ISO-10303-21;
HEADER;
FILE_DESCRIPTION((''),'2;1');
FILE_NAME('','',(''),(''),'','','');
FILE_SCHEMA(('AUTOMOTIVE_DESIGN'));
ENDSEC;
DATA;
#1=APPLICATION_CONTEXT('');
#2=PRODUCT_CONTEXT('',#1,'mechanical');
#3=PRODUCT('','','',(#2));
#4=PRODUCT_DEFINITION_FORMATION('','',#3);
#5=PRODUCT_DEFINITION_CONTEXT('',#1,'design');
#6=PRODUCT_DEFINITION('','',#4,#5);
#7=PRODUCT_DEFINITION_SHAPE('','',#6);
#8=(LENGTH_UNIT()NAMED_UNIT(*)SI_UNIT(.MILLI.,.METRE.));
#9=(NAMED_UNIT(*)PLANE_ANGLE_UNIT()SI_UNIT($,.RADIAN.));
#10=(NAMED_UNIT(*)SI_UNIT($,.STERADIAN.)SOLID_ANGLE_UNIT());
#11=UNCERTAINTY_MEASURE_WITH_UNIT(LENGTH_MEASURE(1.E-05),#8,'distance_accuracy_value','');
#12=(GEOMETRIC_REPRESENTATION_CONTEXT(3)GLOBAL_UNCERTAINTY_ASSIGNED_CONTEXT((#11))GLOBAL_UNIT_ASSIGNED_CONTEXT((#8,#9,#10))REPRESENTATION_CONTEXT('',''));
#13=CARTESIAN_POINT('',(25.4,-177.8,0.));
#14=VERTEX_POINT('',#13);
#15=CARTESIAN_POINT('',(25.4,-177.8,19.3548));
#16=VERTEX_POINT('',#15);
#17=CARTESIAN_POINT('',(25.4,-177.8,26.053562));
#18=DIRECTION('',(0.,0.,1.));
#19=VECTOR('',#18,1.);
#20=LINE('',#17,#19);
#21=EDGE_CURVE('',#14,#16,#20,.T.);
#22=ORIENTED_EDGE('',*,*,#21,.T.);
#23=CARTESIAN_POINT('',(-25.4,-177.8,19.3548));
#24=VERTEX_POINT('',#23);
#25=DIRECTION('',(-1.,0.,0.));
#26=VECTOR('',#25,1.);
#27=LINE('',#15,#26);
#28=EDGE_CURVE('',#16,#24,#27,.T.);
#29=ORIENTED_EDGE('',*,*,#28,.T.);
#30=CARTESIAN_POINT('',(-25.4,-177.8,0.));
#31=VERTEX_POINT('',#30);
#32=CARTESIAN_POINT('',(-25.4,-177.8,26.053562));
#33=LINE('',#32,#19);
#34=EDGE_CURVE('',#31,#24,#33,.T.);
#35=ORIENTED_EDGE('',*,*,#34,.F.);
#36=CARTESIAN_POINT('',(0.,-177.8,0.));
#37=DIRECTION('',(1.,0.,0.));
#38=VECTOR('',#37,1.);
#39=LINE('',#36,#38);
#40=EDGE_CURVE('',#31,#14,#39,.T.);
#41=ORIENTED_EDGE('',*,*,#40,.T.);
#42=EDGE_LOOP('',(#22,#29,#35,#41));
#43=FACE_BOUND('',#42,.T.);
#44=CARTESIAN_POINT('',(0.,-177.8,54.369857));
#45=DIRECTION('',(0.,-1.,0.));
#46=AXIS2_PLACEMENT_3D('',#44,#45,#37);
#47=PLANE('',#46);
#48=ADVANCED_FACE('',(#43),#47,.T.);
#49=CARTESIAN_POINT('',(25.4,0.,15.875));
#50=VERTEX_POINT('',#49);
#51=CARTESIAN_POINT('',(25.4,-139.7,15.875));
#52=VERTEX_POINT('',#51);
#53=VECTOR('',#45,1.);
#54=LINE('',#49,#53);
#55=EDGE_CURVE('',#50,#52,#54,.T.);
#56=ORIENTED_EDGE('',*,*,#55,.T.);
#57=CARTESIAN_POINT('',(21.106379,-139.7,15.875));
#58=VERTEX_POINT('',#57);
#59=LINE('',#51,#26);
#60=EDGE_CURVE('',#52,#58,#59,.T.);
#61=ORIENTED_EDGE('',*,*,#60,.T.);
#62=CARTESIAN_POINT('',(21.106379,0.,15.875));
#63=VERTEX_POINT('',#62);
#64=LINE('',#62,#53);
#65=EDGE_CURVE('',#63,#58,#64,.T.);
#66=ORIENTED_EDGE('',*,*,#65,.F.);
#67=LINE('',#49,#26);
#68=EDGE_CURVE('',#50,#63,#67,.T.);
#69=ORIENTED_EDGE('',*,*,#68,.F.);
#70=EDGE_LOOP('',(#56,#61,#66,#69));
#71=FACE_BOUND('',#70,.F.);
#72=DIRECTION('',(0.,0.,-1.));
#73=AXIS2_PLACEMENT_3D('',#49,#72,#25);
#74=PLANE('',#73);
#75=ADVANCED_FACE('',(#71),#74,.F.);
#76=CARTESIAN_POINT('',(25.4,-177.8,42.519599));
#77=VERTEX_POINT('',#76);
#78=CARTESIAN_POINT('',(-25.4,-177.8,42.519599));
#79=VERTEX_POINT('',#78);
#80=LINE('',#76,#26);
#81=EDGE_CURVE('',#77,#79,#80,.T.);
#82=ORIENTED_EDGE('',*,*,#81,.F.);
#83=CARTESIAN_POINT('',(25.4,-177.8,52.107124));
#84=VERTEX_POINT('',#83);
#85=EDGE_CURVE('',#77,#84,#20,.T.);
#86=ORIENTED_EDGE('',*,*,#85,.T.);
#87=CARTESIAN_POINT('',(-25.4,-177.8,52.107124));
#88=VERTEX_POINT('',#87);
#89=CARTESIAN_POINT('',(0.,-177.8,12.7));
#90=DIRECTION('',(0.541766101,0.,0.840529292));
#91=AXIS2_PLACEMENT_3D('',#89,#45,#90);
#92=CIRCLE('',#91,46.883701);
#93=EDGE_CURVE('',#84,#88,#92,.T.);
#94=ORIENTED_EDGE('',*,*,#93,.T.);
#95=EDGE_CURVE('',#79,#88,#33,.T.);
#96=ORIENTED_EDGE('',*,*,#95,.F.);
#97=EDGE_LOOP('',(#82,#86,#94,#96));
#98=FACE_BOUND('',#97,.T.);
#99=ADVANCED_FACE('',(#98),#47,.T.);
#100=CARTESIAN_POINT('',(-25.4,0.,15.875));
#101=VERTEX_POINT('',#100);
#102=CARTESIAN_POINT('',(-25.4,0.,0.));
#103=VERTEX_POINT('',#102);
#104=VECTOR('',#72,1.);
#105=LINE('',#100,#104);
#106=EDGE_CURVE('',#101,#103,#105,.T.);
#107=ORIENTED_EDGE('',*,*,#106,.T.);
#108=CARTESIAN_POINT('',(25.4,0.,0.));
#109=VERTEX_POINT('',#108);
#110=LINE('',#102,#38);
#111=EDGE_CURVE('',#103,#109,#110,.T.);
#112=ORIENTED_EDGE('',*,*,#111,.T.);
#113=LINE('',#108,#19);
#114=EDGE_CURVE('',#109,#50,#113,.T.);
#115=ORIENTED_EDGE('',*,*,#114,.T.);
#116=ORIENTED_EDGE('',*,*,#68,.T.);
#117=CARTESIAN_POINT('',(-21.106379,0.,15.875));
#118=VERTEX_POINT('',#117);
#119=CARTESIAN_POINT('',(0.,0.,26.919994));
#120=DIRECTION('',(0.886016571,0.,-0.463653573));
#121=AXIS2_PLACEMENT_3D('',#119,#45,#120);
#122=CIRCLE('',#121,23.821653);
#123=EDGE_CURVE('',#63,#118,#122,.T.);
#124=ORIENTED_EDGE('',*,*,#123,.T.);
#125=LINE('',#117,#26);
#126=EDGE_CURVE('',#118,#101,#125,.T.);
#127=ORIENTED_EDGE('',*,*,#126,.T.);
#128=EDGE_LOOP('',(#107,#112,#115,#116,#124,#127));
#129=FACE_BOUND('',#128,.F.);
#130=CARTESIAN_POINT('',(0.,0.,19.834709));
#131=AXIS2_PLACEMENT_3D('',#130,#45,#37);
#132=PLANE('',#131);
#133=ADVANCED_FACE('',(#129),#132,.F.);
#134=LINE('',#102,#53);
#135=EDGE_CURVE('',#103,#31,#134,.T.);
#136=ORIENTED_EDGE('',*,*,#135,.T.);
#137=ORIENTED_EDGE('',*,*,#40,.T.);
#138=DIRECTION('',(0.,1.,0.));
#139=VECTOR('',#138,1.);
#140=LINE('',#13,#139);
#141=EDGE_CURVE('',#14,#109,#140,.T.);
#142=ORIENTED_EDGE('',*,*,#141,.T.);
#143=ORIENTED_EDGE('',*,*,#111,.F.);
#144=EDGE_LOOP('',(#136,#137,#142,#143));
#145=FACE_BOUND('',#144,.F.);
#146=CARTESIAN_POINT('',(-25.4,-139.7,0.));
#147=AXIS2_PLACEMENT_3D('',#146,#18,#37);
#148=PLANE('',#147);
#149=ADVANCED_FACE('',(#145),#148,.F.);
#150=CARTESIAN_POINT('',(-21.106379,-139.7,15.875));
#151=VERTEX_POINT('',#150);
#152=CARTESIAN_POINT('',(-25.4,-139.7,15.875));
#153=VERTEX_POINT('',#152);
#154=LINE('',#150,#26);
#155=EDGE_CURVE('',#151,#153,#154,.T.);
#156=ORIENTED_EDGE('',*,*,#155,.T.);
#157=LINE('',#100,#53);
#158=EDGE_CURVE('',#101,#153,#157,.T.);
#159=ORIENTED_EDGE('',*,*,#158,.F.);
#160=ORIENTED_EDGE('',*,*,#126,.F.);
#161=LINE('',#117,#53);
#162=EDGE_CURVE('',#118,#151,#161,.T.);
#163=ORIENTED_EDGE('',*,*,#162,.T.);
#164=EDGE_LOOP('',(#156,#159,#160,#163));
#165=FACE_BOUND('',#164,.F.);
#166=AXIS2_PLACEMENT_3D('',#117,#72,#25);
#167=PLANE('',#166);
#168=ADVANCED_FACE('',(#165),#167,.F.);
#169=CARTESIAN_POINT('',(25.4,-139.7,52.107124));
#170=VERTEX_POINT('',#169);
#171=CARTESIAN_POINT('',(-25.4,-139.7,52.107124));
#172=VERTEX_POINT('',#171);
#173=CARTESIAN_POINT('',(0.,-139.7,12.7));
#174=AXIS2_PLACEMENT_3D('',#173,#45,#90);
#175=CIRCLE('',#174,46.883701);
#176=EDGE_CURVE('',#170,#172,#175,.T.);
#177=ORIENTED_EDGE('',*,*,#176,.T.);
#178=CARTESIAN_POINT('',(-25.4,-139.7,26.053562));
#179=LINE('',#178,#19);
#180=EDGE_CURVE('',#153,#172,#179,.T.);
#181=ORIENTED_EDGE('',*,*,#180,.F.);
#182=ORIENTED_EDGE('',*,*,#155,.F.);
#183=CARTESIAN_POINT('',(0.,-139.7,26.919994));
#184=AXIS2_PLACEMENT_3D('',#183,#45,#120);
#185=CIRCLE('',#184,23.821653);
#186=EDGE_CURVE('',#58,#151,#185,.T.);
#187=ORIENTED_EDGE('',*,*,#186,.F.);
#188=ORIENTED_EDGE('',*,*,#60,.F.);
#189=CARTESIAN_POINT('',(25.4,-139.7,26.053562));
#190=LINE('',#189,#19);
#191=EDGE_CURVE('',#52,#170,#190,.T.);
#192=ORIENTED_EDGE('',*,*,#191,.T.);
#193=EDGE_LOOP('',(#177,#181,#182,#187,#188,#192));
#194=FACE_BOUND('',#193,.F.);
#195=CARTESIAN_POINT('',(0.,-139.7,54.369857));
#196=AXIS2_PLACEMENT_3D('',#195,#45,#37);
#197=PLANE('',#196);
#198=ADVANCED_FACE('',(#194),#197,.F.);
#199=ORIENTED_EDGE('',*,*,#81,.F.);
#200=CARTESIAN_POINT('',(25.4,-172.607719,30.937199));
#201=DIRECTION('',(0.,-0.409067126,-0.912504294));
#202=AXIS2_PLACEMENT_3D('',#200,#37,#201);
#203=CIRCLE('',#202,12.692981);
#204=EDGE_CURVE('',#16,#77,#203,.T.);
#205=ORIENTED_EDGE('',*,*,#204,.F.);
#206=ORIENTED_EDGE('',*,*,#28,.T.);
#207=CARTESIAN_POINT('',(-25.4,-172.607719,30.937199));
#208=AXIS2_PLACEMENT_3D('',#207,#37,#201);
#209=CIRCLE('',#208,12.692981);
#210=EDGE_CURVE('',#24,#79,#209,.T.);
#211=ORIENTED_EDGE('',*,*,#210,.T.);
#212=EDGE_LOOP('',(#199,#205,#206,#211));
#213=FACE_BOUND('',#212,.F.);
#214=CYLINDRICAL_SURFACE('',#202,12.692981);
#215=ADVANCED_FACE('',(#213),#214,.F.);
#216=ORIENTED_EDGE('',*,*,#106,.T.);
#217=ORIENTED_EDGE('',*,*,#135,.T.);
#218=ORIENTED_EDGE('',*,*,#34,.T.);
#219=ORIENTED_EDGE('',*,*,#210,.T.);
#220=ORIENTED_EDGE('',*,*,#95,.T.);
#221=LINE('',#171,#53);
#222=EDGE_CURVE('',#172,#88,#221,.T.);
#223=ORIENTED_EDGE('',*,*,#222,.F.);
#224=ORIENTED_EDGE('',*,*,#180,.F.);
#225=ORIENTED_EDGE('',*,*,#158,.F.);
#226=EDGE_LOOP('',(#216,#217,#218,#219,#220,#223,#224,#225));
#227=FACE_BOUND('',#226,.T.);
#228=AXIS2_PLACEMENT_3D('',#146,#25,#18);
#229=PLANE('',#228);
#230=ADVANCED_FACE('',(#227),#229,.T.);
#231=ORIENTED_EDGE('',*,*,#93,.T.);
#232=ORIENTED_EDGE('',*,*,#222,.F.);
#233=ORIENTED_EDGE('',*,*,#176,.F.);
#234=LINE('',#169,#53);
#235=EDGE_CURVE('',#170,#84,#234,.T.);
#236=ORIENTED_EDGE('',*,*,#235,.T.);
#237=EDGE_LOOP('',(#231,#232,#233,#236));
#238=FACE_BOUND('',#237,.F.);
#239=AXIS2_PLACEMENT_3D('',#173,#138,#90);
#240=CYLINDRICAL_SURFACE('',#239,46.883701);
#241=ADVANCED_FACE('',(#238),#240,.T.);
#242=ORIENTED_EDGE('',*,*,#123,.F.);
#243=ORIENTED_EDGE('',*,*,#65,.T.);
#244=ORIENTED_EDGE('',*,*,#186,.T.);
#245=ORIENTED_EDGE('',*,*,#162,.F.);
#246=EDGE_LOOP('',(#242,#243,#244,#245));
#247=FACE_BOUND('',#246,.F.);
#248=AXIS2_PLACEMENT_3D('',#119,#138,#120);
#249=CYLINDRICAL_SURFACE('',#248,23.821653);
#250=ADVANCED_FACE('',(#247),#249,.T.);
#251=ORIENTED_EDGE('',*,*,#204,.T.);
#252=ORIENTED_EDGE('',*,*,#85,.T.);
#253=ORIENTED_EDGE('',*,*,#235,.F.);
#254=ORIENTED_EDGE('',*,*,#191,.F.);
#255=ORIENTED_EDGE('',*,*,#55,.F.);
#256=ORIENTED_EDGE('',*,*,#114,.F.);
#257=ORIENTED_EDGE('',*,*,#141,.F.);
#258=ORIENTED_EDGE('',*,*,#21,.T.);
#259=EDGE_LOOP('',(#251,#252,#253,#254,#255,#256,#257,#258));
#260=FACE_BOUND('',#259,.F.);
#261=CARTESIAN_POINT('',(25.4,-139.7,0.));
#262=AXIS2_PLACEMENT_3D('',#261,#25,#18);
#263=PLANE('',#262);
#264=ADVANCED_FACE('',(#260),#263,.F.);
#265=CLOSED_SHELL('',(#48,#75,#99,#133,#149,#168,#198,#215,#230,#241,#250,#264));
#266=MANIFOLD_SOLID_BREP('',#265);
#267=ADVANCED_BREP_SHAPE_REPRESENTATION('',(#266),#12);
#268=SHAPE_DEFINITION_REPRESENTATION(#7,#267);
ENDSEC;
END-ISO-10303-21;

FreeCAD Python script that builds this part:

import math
import FreeCAD as App
import Part
import Sketcher

V = App.Vector
Q = App.Units.Quantity

doc = App.newDocument("Part")
body = doc.addObject("PartDesign::Body", "Body")

sketch1 = body.newObject("Sketcher::SketchObject", "Sketch")
sketch1.AttachmentSupport = (doc.getObject("XZ_Plane"), [""])
sketch1.MapMode = "FlatFace"
sketch1.addGeometry(Part.LineSegment(V(-25.4, 0, 0), V(25.4, 0, 0)), False)
sketch1.addGeometry(Part.LineSegment(V(25.4, 0, 0), V(25.4, 15.9, 0)), False)
sketch1.addGeometry(Part.LineSegment(V(25.4, 15.9, 0), V(21.1, 15.9, 0)), False)
sketch1.addGeometry(Part.ArcOfCircle(Part.Circle(V(0, 26.9, 0), V(0, 0, 1), 23.8), math.radians(-28), math.radians(208)), False)
sketch1.addGeometry(Part.LineSegment(V(-21.1, 15.9, 0), V(-25.4, 15.9, 0)), False)
sketch1.addGeometry(Part.LineSegment(V(-25.4, 15.9, 0), V(-25.4, 0, 0)), False)
sketch1.addConstraint(Sketcher.Constraint("Coincident", 0, 2, 1, 1))
sketch1.addConstraint(Sketcher.Constraint("Coincident", 1, 2, 2, 1))
sketch1.addConstraint(Sketcher.Constraint("Coincident", 2, 2, 3, 1))
sketch1.addConstraint(Sketcher.Constraint("Coincident", 3, 2, 4, 1))
sketch1.addConstraint(Sketcher.Constraint("Coincident", 4, 2, 5, 1))
sketch1.addConstraint(Sketcher.Constraint("Coincident", 5, 2, 0, 1))
sketch1.addConstraint(Sketcher.Constraint("Horizontal", 0))
sketch1.addConstraint(Sketcher.Constraint("Vertical", 1))
sketch1.addConstraint(Sketcher.Constraint("Horizontal", 2))
sketch1.addConstraint(Sketcher.Constraint("Horizontal", 4))
sketch1.addConstraint(Sketcher.Constraint("Vertical", 5))
sketch1.addConstraint(Sketcher.Constraint("Symmetric", 0, 2, 5, 2, -1, 1))
sketch1.addConstraint(Sketcher.Constraint("Symmetric", 2, 2, 3, 2, -2))
sketch1.addConstraint(Sketcher.Constraint("DistanceX", 0, 1, 0, 2, Q("2 in")))
sketch1.addConstraint(Sketcher.Constraint("DistanceY", 1, 1, 1, 2, Q("0.625 in")))
sketch1.addConstraint(Sketcher.Constraint("Radius", 3, 23.821653))
sketch1.addConstraint(Sketcher.Constraint("DistanceX", 2, 2, 2, 1, 4.293621))
pad1 = body.newObject("PartDesign::Pad", "Pad")
pad1.Profile = sketch1
pad1.Length = Q("5.5 in")

sketch2 = body.newObject("Sketcher::SketchObject", "Sketch001")
sketch2.AttachmentSupport = (doc.getObject("XZ_Plane"), [""])
sketch2.MapMode = "FlatFace"
sketch2.AttachmentOffset = App.Placement(V(0, 0, 5.5 * 25.4), App.Rotation())
sketch2.addGeometry(Part.ArcOfCircle(Part.Circle(V(0, 13, 0), V(0, 0, 1), 47), math.radians(57), math.radians(123)), False)
sketch2.addGeometry(Part.LineSegment(V(-25, 52, 0), V(-25, 0, 0)), False)
sketch2.addGeometry(Part.LineSegment(V(-25, 0, 0), V(25, 0, 0)), False)
sketch2.addGeometry(Part.LineSegment(V(25, 0, 0), V(25, 52, 0)), False)
sketch2.addConstraint(Sketcher.Constraint("Coincident", 0, 2, 1, 1))
sketch2.addConstraint(Sketcher.Constraint("Coincident", 1, 2, 2, 1))
sketch2.addConstraint(Sketcher.Constraint("Coincident", 2, 2, 3, 1))
sketch2.addConstraint(Sketcher.Constraint("Coincident", 3, 2, 0, 1))
sketch2.addConstraint(Sketcher.Constraint("Vertical", 1))
sketch2.addConstraint(Sketcher.Constraint("Horizontal", 2))
sketch2.addConstraint(Sketcher.Constraint("Vertical", 3))
sketch2.addConstraint(Sketcher.Constraint("Symmetric", 1, 2, 2, 2, -1, 1))
sketch2.addConstraint(Sketcher.Constraint("PointOnObject", 0, 3, -2))
sketch2.addConstraint(Sketcher.Constraint("DistanceX", 2, 1, 2, 2, Q("2 in")))
sketch2.addConstraint(Sketcher.Constraint("DistanceY", -1, 1, 0, 3, Q("0.5 in")))
sketch2.addConstraint(Sketcher.Constraint("Radius", 0, 46.883701))
pad2 = body.newObject("PartDesign::Pad", "Pad001")
pad2.Profile = sketch2
pad2.Length = Q("1.5 in")

sketch3 = body.newObject("Sketcher::SketchObject", "Sketch002")
sketch3.AttachmentSupport = (doc.getObject("YZ_Plane"), [""])
sketch3.MapMode = "FlatFace"
sketch3.AttachmentOffset = App.Placement(V(0, 0, 1 * 25.4), App.Rotation())
sketch3.addGeometry(Part.LineSegment(V(-178, 43, 0), V(-178, 19, 0)), False)
sketch3.addGeometry(Part.ArcOfCircle(Part.Circle(V(-173, 31, 0), V(0, 0, 1), 13), math.radians(-114), math.radians(114)), False)
sketch3.addConstraint(Sketcher.Constraint("Coincident", 0, 1, 1, 2))
sketch3.addConstraint(Sketcher.Constraint("Coincident", 1, 1, 0, 2))
sketch3.addConstraint(Sketcher.Constraint("Vertical", 0))
sketch3.addConstraint(Sketcher.Constraint("DistanceX", 0, 1, -1, 1, Q("7 in")))
sketch3.addConstraint(Sketcher.Constraint("DistanceY", 0, 2, 0, 1, Q("0.912 in")))
sketch3.addConstraint(Sketcher.Constraint("DistanceY", -1, 1, 1, 3, Q("1.218 in")))
sketch3.addConstraint(Sketcher.Constraint("Radius", 1, 12.692981))
pocket1 = body.newObject("PartDesign::Pocket", "Pocket")
pocket1.Profile = sketch3
pocket1.Length = Q("2 in")

doc.recompute()
